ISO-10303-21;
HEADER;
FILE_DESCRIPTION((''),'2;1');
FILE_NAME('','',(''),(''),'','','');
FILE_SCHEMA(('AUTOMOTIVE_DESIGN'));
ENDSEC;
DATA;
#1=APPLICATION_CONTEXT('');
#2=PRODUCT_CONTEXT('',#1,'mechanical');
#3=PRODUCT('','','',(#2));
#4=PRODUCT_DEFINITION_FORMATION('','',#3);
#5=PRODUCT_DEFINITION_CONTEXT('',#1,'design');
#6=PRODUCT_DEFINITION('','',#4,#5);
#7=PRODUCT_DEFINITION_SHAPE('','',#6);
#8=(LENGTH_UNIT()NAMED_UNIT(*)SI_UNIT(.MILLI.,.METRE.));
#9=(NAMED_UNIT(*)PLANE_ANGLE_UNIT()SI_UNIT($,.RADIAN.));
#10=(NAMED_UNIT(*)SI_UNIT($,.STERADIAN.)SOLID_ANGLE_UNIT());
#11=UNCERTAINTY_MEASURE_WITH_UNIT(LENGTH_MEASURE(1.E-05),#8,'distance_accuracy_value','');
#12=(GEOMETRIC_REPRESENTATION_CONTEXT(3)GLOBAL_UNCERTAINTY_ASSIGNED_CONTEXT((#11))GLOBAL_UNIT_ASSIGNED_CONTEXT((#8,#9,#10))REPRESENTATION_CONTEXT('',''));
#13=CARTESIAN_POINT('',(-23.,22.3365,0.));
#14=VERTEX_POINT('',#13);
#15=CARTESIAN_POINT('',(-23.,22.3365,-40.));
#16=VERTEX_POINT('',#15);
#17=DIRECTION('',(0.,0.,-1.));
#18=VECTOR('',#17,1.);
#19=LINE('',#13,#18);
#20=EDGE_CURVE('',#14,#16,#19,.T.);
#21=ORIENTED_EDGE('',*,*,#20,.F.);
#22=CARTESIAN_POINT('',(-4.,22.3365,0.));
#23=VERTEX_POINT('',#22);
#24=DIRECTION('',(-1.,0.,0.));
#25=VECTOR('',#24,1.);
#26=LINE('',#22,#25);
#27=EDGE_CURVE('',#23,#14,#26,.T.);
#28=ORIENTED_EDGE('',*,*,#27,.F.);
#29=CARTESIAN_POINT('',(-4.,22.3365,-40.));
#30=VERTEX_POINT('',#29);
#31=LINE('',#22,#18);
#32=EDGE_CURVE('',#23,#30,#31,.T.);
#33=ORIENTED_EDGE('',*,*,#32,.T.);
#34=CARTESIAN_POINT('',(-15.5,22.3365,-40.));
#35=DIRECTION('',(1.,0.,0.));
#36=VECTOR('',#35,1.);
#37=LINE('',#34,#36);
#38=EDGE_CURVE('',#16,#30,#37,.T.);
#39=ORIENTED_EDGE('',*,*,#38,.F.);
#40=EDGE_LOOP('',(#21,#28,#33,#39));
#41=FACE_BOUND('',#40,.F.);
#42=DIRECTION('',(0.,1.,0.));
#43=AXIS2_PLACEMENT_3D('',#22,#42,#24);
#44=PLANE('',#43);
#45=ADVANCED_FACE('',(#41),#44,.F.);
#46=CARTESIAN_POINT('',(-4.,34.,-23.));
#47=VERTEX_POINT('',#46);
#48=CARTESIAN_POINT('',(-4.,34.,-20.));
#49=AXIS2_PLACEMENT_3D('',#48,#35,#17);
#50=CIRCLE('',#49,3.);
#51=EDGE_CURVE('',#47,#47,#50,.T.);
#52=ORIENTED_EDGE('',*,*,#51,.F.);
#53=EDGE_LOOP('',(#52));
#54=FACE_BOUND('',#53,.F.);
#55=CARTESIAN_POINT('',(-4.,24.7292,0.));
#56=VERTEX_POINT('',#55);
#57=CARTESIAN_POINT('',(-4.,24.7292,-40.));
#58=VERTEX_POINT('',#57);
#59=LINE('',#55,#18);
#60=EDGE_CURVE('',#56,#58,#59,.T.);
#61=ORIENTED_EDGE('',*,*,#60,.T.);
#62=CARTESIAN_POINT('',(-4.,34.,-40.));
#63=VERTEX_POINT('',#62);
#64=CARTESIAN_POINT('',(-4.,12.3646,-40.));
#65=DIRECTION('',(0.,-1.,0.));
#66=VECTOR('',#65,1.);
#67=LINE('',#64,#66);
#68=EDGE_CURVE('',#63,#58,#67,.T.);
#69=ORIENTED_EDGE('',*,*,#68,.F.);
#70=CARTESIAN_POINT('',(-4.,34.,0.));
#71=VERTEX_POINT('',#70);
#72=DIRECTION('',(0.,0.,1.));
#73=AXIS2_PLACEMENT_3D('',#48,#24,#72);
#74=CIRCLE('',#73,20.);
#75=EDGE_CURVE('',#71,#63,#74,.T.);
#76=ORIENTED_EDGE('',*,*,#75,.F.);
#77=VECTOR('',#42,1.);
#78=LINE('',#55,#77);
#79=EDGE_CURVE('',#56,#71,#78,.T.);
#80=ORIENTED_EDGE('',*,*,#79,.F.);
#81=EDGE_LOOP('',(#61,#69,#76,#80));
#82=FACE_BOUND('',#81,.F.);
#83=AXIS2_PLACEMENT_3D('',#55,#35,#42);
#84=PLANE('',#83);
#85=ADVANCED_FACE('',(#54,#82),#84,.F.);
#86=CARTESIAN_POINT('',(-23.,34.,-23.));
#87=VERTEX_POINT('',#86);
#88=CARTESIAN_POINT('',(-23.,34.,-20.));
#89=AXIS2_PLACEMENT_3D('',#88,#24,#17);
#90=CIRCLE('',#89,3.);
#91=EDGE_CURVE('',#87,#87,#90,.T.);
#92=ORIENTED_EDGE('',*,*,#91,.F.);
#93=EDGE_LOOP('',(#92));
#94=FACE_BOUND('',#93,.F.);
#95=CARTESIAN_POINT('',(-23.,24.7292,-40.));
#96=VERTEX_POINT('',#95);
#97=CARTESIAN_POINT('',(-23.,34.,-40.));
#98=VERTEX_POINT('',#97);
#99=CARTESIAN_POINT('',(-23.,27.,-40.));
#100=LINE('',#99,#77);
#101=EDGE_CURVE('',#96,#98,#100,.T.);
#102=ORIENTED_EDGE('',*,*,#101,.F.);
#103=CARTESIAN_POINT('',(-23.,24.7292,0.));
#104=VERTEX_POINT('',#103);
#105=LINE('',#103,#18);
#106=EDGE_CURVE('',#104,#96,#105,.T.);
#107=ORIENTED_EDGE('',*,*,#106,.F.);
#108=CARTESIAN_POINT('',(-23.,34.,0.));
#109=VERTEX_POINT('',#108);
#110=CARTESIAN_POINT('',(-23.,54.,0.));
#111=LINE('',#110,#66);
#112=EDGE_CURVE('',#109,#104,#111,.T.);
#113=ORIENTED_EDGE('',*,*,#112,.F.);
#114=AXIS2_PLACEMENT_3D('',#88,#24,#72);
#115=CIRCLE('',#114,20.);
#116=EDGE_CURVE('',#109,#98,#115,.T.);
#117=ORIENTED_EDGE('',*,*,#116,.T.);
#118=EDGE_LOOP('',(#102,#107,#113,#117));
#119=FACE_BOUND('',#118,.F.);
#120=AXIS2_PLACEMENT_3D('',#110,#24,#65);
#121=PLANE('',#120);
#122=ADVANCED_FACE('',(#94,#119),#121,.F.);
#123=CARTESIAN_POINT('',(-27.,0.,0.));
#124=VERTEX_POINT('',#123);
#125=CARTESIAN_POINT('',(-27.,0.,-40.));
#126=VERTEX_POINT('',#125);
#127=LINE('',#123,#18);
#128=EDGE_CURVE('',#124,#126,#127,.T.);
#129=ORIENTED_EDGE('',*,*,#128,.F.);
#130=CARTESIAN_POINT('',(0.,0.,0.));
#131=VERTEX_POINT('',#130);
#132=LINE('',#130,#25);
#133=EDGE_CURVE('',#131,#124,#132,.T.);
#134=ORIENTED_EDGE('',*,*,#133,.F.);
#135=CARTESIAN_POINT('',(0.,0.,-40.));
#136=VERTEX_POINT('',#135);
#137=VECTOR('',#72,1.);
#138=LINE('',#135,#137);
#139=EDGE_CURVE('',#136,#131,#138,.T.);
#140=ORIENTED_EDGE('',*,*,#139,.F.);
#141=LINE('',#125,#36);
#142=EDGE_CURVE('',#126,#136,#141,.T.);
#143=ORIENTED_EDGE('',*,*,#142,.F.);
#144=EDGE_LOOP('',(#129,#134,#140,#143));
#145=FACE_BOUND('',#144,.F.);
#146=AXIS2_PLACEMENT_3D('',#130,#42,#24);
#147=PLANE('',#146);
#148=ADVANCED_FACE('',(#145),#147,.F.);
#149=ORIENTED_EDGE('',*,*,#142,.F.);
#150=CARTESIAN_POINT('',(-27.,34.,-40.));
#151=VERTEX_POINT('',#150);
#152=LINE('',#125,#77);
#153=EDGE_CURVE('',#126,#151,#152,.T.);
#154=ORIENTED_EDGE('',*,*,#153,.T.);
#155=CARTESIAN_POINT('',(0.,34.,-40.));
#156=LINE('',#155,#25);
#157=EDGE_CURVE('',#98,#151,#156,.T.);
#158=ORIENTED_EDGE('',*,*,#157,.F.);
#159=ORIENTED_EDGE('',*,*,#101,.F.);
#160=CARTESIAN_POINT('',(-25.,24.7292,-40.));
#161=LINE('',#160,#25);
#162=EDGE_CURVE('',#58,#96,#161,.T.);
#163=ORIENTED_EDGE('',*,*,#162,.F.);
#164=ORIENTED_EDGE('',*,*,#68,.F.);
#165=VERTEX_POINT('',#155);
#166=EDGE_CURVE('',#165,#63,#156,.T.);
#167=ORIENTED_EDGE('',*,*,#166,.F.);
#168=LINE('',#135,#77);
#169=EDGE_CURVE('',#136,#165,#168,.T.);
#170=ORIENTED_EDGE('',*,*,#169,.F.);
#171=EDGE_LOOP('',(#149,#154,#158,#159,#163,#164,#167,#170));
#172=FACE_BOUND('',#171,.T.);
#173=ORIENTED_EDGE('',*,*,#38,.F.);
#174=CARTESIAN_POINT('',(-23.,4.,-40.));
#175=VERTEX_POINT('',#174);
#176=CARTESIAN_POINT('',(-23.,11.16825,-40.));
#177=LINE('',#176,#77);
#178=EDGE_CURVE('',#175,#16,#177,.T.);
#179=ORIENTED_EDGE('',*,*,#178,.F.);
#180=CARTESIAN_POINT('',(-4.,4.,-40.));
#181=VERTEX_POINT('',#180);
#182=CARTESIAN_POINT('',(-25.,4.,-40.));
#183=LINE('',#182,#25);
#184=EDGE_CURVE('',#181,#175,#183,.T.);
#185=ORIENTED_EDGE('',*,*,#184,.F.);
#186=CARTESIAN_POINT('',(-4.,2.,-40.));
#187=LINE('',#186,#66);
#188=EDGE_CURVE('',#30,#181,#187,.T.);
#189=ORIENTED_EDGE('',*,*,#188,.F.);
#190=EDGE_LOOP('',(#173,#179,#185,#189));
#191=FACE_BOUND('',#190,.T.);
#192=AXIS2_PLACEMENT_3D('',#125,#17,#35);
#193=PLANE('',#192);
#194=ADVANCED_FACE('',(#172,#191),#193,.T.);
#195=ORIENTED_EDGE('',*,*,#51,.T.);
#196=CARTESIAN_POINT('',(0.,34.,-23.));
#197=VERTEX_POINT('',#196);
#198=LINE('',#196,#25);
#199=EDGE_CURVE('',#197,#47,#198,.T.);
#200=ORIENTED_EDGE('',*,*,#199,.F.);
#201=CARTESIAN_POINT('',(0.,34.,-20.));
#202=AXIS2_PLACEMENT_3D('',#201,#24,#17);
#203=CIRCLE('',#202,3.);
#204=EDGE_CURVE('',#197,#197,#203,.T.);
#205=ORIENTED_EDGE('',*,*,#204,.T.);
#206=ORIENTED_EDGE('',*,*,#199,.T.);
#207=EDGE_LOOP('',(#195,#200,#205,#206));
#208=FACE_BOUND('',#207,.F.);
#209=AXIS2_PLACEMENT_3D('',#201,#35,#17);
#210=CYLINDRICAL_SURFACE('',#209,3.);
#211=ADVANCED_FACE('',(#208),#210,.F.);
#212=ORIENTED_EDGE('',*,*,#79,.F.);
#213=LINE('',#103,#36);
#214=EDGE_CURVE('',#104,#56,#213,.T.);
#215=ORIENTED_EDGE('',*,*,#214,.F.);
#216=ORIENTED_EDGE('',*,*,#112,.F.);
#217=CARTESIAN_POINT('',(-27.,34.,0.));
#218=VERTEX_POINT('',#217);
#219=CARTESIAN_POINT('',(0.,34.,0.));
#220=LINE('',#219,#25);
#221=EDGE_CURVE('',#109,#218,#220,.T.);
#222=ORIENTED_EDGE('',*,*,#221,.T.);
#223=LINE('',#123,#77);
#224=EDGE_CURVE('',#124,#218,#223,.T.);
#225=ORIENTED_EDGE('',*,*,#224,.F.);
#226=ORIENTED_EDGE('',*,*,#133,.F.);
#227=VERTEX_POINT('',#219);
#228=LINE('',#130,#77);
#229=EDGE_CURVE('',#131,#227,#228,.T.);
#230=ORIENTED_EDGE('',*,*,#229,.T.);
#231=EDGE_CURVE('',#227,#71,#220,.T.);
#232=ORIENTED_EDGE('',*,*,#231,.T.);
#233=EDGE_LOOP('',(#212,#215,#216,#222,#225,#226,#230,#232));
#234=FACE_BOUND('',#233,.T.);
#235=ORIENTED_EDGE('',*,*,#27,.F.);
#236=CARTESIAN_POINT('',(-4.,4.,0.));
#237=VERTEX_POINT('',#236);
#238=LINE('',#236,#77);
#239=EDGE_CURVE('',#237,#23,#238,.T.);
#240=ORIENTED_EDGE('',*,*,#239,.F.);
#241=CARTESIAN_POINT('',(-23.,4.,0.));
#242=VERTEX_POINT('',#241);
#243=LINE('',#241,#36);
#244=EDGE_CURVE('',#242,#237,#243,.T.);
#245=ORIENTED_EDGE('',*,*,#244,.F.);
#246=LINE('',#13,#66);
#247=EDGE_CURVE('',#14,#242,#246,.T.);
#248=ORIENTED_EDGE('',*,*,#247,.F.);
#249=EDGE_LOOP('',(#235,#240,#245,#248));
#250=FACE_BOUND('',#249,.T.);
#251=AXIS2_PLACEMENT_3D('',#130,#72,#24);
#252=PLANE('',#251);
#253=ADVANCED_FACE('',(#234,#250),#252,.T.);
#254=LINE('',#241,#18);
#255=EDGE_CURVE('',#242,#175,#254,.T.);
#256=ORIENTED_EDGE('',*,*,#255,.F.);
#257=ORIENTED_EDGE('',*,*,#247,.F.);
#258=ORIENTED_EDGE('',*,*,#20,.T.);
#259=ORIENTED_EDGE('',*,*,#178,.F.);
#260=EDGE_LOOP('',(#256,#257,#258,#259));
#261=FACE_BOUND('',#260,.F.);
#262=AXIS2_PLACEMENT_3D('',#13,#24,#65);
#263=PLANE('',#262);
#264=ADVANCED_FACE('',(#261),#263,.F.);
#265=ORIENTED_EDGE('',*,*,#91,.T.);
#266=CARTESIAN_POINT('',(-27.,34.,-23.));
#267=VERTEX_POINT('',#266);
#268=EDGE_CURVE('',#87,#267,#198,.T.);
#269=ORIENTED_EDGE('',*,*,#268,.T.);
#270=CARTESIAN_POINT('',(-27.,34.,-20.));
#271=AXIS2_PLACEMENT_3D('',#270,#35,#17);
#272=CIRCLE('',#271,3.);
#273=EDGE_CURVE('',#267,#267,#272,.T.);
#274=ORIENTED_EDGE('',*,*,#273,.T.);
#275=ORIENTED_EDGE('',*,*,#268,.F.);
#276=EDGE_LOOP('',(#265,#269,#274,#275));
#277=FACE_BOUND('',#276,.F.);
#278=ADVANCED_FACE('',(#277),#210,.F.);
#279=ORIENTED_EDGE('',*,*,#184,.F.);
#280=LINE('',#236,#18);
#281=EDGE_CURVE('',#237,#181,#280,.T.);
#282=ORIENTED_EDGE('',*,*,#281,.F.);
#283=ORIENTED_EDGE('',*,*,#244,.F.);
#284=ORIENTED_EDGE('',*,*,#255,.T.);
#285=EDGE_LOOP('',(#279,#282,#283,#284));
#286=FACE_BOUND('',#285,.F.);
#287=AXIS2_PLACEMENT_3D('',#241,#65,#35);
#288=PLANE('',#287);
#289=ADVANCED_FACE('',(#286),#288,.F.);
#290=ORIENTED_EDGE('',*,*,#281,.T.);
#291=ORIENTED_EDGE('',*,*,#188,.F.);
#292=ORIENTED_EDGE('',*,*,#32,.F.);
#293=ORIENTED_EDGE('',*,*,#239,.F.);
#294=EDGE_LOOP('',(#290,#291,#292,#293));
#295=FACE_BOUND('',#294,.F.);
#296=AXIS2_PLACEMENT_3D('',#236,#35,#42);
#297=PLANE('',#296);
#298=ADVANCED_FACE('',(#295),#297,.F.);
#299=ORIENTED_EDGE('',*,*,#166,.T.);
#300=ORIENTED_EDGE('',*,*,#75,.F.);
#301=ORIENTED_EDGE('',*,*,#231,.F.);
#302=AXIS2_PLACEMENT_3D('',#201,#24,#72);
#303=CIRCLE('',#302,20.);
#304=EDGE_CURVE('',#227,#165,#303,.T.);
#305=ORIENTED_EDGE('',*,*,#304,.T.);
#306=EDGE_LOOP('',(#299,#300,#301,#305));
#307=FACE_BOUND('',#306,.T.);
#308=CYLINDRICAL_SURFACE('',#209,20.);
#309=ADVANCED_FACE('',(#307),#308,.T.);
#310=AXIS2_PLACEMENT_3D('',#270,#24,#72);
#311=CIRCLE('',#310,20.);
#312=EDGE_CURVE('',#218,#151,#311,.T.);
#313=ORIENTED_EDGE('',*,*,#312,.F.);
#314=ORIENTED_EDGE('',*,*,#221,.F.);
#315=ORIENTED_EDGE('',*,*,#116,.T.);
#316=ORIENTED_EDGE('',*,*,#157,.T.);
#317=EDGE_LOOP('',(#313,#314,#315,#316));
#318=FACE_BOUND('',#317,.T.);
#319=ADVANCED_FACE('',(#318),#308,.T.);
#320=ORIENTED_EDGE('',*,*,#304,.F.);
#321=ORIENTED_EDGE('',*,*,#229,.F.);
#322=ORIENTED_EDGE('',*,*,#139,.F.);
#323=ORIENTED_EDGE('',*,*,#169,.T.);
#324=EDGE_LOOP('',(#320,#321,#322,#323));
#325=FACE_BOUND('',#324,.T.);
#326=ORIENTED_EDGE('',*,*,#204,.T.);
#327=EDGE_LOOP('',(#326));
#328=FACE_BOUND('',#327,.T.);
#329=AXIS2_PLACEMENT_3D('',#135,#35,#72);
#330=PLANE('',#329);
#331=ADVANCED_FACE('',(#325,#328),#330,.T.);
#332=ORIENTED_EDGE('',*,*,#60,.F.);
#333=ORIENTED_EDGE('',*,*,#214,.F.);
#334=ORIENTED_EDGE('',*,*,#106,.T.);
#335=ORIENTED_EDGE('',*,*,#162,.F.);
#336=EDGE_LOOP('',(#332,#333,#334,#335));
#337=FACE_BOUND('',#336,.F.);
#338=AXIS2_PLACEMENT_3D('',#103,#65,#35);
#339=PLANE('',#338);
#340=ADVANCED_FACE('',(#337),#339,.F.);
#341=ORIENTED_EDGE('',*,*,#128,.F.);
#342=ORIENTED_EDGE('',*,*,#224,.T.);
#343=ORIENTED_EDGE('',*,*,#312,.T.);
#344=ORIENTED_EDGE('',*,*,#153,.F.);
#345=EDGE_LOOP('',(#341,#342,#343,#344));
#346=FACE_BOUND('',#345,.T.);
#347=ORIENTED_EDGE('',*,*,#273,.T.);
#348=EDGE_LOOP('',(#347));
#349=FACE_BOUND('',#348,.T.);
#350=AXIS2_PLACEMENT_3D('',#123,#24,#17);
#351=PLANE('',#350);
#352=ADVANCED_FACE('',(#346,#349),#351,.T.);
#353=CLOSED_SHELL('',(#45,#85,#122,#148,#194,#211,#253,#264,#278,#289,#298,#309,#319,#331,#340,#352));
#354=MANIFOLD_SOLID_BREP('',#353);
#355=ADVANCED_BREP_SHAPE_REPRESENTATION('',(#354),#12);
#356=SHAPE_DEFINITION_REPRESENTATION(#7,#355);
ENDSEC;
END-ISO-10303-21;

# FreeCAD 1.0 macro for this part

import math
import FreeCAD as App
import Part
import Sketcher

doc = App.newDocument("Part")
body = doc.addObject("PartDesign::Body", "Body")

# Sketch on XZ plane
sketch1 = body.newObject("Sketcher::SketchObject", "Sketch")
sketch1.AttachmentSupport = (doc.getObject("XZ_Plane"), [""])
sketch1.MapMode = "FlatFace"
sketch1.addGeometry([
    Part.LineSegment(App.Vector(-27, 0, 0), App.Vector(0, 0, 0)),
    Part.LineSegment(App.Vector(0, 0, 0), App.Vector(0, -40, 0)),
    Part.LineSegment(App.Vector(0, -40, 0), App.Vector(-27, -40, 0)),
    Part.LineSegment(App.Vector(-27, -40, 0), App.Vector(-27, 0, 0)),
], False)
sketch1.addConstraint([
    Sketcher.Constraint("Coincident", 0, 2, 1, 1),
    Sketcher.Constraint("Coincident", 1, 2, 2, 1),
    Sketcher.Constraint("Coincident", 2, 2, 3, 1),
    Sketcher.Constraint("Coincident", 3, 2, 0, 1),
    Sketcher.Constraint("Horizontal", 0),
    Sketcher.Constraint("Vertical", 1),
    Sketcher.Constraint("Horizontal", 2),
    Sketcher.Constraint("Vertical", 3),
    Sketcher.Constraint("Coincident", 0, 2, -1, 1),
    Sketcher.Constraint("DistanceX", 0, 1, 0, 2, 27.0),
    Sketcher.Constraint("DistanceY", 1, 2, 1, 1, 40.0),
])
pad1 = body.newObject("PartDesign::Pad", "Pad")
pad1.Profile = sketch1
pad1.Length = 54
pad1.Reversed = True

# Sketch on XY plane
sketch2 = body.newObject("Sketcher::SketchObject", "Sketch001")
sketch2.AttachmentSupport = (doc.getObject("XY_Plane"), [""])
sketch2.MapMode = "FlatFace"
sketch2.addGeometry([
    Part.LineSegment(App.Vector(-23, 22.3365, 0), App.Vector(-23, 4, 0)),  # 0
    Part.LineSegment(App.Vector(-23, 4, 0), App.Vector(-4, 4, 0)),  # 1
    Part.LineSegment(App.Vector(-4, 4, 0), App.Vector(-4, 22.3365, 0)),  # 2
    Part.LineSegment(App.Vector(-4, 22.3365, 0), App.Vector(-23, 22.3365, 0)),  # 3
    Part.LineSegment(App.Vector(-4, 54, 0), App.Vector(-23, 54, 0)),  # 4
    Part.LineSegment(App.Vector(-23, 54, 0), App.Vector(-23, 24.7292, 0)),  # 5
    Part.LineSegment(App.Vector(-23, 24.7292, 0), App.Vector(-4, 24.7292, 0)),  # 6
    Part.LineSegment(App.Vector(-4, 24.7292, 0), App.Vector(-4, 54, 0)),  # 7
], False)
sketch2.addConstraint([
    Sketcher.Constraint("Coincident", 0, 2, 1, 1),
    Sketcher.Constraint("Coincident", 1, 2, 2, 1),
    Sketcher.Constraint("Coincident", 2, 2, 3, 1),
    Sketcher.Constraint("Coincident", 3, 2, 0, 1),
    Sketcher.Constraint("Coincident", 4, 2, 5, 1),
    Sketcher.Constraint("Coincident", 5, 2, 6, 1),
    Sketcher.Constraint("Coincident", 6, 2, 7, 1),
    Sketcher.Constraint("Coincident", 7, 2, 4, 1),
    Sketcher.Constraint("Vertical", 0),
    Sketcher.Constraint("Horizontal", 1),
    Sketcher.Constraint("Vertical", 2),
    Sketcher.Constraint("Horizontal", 3),
    Sketcher.Constraint("Horizontal", 4),
    Sketcher.Constraint("Vertical", 5),
    Sketcher.Constraint("Horizontal", 6),
    Sketcher.Constraint("Vertical", 7),
    Sketcher.Constraint("Vertical", 3, 2, 4, 2),
    Sketcher.Constraint("Vertical", 2, 2, 6, 2),
    Sketcher.Constraint("DistanceY", -1, 1, 0, 2, 4.0),
    Sketcher.Constraint("DistanceX", 1, 2, -1, 1, 4.0),
    Sketcher.Constraint("DistanceX", 1, 1, 1, 2, 19.0),
    Sketcher.Constraint("DistanceY", -1, 1, 4, 2, 54.0),
    Sketcher.Constraint("DistanceY", 0, 2, 0, 1, 18.3365),
    Sketcher.Constraint("DistanceY", 5, 2, 5, 1, 29.2708),
])
pocket1 = body.newObject("PartDesign::Pocket", "Pocket")
pocket1.Profile = sketch2
pocket1.Length = 54

# Sketch on YZ plane
sketch3 = body.newObject("Sketcher::SketchObject", "Sketch002")
sketch3.AttachmentSupport = (doc.getObject("YZ_Plane"), [""])
sketch3.MapMode = "FlatFace"
sketch3.addGeometry(Part.Circle(App.Vector(34, -20, 0), App.Vector(0, 0, 1), 3), False)
sketch3.addConstraint([
    Sketcher.Constraint("Diameter", 0, 6.0),
    Sketcher.Constraint("DistanceY", 0, 3, -1, 1, 20.0),
    Sketcher.Constraint("DistanceX", -1, 1, 0, 3, 34.0),
])
pocket2 = body.newObject("PartDesign::Pocket", "Pocket001")
pocket2.Profile = sketch3
pocket2.Length = 54

# Sketch on YZ plane
sketch4 = body.newObject("Sketcher::SketchObject", "Sketch003")
sketch4.AttachmentSupport = (doc.getObject("YZ_Plane"), [""])
sketch4.MapMode = "FlatFace"
sketch4.addGeometry([
    Part.LineSegment(App.Vector(54, 0, 0), App.Vector(34, 0, 0)),  # 0
    Part.ArcOfCircle(Part.Circle(App.Vector(34, -20, 0), App.Vector(0, 0, 1), 20), math.radians(0), math.radians(90)),  # 1
    Part.LineSegment(App.Vector(54, -20, 0), App.Vector(54, 0, 0)),  # 2
    Part.ArcOfCircle(Part.Circle(App.Vector(34, -20, 0), App.Vector(0, 0, 1), 20), math.radians(-90), math.radians(0)),  # 3
    Part.LineSegment(App.Vector(34, -40, 0), App.Vector(54, -40, 0)),  # 4
    Part.LineSegment(App.Vector(54, -40, 0), App.Vector(54, -20, 0)),  # 5
], False)
sketch4.addConstraint([
    Sketcher.Constraint("Tangent", 0, 2, 1, 2),
    Sketcher.Constraint("Tangent", 1, 1, 2, 1),
    Sketcher.Constraint("Coincident", 2, 2, 0, 1),
    Sketcher.Constraint("Tangent", 3, 1, 4, 1),
    Sketcher.Constraint("Coincident", 4, 2, 5, 1),
    Sketcher.Constraint("Tangent", 5, 2, 3, 2),
    Sketcher.Constraint("Horizontal", 0),
    Sketcher.Constraint("Vertical", 2),
    Sketcher.Constraint("Horizontal", 4),
    Sketcher.Constraint("Vertical", 5),
    Sketcher.Constraint("Coincident", 3, 3, 1, 3),
    Sketcher.Constraint("Equal", 1, 3),
    Sketcher.Constraint("PointOnObject", 0, 2, -1),
    Sketcher.Constraint("Radius", 1, 20.0),
    Sketcher.Constraint("DistanceX", -1, 1, 1, 3, 34.0),
])
pocket3 = body.newObject("PartDesign::Pocket", "Pocket002")
pocket3.Profile = sketch4
pocket3.Length = 54

doc.recompute()
